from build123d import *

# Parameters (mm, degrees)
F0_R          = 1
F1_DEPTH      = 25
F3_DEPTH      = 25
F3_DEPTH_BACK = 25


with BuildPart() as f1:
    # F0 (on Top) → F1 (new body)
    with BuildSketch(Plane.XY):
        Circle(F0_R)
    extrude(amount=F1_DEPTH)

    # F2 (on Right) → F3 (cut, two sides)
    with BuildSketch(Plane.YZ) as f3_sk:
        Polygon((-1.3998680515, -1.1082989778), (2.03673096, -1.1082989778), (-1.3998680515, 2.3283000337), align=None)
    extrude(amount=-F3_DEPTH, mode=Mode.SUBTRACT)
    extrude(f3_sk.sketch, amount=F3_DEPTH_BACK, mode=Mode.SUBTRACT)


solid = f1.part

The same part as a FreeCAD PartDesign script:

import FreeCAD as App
import Part
import Sketcher

V = App.Vector


def add_polygon(sketch, points):
    """Adds a closed chain of lines whose ends are joined by coincident constraints."""
    first, n = sketch.GeometryCount, len(points)
    for a, b in zip(points, points[1:] + points[:1]):
        sketch.addGeometry(Part.LineSegment(App.Vector(*a, 0), App.Vector(*b, 0)), False)
    for i in range(n):
        sketch.addConstraint(Sketcher.Constraint("Coincident", first + i, 2, first + (i + 1) % n, 1))

doc = App.newDocument("Part")
body = doc.addObject("PartDesign::Body", "Body")

# Sketch on XY plane
sketch1 = body.newObject("Sketcher::SketchObject", "Sketch")
sketch1.AttachmentSupport = (doc.getObject("XY_Plane"), [""])
sketch1.MapMode = "FlatFace"
sketch1.addGeometry(Part.Circle(V(0, 0, 0), V(0, 0, 1), 1), False)
sketch1.addConstraint(Sketcher.Constraint("Coincident", 0, 3, -1, 1))
sketch1.addConstraint(Sketcher.Constraint("Diameter", 0, 2.0))
pad1 = body.newObject("PartDesign::Pad", "Pad")
pad1.Profile = sketch1
pad1.Length = 25

# Sketch on YZ plane
sketch2 = body.newObject("Sketcher::SketchObject", "Sketch001")
sketch2.AttachmentSupport = (doc.getObject("YZ_Plane"), [""])
sketch2.MapMode = "FlatFace"
add_polygon(sketch2, [(-1.399868, -1.108299), (2.036731, -1.108299), (-1.399868, 2.3283)])  # lines 0-2
sketch2.addConstraint(Sketcher.Constraint("Horizontal", 0))
sketch2.addConstraint(Sketcher.Constraint("Vertical", 2))
sketch2.addConstraint(Sketcher.Constraint("Equal", 0, 2))
sketch2.addConstraint(Sketcher.Constraint("DistanceX", 0, 1, 0, 2, 3.436599))
sketch2.addConstraint(Sketcher.Constraint("DistanceY", 0, 2, -1, 1, 1.108299))
sketch2.addConstraint(Sketcher.Constraint("DistanceX", -1, 1, 0, 2, 2.036731))
pocket1 = body.newObject("PartDesign::Pocket", "Pocket")
pocket1.Profile = sketch2
pocket1.Type = "ThroughAll"
pocket1.Midplane = True

doc.recompute()
